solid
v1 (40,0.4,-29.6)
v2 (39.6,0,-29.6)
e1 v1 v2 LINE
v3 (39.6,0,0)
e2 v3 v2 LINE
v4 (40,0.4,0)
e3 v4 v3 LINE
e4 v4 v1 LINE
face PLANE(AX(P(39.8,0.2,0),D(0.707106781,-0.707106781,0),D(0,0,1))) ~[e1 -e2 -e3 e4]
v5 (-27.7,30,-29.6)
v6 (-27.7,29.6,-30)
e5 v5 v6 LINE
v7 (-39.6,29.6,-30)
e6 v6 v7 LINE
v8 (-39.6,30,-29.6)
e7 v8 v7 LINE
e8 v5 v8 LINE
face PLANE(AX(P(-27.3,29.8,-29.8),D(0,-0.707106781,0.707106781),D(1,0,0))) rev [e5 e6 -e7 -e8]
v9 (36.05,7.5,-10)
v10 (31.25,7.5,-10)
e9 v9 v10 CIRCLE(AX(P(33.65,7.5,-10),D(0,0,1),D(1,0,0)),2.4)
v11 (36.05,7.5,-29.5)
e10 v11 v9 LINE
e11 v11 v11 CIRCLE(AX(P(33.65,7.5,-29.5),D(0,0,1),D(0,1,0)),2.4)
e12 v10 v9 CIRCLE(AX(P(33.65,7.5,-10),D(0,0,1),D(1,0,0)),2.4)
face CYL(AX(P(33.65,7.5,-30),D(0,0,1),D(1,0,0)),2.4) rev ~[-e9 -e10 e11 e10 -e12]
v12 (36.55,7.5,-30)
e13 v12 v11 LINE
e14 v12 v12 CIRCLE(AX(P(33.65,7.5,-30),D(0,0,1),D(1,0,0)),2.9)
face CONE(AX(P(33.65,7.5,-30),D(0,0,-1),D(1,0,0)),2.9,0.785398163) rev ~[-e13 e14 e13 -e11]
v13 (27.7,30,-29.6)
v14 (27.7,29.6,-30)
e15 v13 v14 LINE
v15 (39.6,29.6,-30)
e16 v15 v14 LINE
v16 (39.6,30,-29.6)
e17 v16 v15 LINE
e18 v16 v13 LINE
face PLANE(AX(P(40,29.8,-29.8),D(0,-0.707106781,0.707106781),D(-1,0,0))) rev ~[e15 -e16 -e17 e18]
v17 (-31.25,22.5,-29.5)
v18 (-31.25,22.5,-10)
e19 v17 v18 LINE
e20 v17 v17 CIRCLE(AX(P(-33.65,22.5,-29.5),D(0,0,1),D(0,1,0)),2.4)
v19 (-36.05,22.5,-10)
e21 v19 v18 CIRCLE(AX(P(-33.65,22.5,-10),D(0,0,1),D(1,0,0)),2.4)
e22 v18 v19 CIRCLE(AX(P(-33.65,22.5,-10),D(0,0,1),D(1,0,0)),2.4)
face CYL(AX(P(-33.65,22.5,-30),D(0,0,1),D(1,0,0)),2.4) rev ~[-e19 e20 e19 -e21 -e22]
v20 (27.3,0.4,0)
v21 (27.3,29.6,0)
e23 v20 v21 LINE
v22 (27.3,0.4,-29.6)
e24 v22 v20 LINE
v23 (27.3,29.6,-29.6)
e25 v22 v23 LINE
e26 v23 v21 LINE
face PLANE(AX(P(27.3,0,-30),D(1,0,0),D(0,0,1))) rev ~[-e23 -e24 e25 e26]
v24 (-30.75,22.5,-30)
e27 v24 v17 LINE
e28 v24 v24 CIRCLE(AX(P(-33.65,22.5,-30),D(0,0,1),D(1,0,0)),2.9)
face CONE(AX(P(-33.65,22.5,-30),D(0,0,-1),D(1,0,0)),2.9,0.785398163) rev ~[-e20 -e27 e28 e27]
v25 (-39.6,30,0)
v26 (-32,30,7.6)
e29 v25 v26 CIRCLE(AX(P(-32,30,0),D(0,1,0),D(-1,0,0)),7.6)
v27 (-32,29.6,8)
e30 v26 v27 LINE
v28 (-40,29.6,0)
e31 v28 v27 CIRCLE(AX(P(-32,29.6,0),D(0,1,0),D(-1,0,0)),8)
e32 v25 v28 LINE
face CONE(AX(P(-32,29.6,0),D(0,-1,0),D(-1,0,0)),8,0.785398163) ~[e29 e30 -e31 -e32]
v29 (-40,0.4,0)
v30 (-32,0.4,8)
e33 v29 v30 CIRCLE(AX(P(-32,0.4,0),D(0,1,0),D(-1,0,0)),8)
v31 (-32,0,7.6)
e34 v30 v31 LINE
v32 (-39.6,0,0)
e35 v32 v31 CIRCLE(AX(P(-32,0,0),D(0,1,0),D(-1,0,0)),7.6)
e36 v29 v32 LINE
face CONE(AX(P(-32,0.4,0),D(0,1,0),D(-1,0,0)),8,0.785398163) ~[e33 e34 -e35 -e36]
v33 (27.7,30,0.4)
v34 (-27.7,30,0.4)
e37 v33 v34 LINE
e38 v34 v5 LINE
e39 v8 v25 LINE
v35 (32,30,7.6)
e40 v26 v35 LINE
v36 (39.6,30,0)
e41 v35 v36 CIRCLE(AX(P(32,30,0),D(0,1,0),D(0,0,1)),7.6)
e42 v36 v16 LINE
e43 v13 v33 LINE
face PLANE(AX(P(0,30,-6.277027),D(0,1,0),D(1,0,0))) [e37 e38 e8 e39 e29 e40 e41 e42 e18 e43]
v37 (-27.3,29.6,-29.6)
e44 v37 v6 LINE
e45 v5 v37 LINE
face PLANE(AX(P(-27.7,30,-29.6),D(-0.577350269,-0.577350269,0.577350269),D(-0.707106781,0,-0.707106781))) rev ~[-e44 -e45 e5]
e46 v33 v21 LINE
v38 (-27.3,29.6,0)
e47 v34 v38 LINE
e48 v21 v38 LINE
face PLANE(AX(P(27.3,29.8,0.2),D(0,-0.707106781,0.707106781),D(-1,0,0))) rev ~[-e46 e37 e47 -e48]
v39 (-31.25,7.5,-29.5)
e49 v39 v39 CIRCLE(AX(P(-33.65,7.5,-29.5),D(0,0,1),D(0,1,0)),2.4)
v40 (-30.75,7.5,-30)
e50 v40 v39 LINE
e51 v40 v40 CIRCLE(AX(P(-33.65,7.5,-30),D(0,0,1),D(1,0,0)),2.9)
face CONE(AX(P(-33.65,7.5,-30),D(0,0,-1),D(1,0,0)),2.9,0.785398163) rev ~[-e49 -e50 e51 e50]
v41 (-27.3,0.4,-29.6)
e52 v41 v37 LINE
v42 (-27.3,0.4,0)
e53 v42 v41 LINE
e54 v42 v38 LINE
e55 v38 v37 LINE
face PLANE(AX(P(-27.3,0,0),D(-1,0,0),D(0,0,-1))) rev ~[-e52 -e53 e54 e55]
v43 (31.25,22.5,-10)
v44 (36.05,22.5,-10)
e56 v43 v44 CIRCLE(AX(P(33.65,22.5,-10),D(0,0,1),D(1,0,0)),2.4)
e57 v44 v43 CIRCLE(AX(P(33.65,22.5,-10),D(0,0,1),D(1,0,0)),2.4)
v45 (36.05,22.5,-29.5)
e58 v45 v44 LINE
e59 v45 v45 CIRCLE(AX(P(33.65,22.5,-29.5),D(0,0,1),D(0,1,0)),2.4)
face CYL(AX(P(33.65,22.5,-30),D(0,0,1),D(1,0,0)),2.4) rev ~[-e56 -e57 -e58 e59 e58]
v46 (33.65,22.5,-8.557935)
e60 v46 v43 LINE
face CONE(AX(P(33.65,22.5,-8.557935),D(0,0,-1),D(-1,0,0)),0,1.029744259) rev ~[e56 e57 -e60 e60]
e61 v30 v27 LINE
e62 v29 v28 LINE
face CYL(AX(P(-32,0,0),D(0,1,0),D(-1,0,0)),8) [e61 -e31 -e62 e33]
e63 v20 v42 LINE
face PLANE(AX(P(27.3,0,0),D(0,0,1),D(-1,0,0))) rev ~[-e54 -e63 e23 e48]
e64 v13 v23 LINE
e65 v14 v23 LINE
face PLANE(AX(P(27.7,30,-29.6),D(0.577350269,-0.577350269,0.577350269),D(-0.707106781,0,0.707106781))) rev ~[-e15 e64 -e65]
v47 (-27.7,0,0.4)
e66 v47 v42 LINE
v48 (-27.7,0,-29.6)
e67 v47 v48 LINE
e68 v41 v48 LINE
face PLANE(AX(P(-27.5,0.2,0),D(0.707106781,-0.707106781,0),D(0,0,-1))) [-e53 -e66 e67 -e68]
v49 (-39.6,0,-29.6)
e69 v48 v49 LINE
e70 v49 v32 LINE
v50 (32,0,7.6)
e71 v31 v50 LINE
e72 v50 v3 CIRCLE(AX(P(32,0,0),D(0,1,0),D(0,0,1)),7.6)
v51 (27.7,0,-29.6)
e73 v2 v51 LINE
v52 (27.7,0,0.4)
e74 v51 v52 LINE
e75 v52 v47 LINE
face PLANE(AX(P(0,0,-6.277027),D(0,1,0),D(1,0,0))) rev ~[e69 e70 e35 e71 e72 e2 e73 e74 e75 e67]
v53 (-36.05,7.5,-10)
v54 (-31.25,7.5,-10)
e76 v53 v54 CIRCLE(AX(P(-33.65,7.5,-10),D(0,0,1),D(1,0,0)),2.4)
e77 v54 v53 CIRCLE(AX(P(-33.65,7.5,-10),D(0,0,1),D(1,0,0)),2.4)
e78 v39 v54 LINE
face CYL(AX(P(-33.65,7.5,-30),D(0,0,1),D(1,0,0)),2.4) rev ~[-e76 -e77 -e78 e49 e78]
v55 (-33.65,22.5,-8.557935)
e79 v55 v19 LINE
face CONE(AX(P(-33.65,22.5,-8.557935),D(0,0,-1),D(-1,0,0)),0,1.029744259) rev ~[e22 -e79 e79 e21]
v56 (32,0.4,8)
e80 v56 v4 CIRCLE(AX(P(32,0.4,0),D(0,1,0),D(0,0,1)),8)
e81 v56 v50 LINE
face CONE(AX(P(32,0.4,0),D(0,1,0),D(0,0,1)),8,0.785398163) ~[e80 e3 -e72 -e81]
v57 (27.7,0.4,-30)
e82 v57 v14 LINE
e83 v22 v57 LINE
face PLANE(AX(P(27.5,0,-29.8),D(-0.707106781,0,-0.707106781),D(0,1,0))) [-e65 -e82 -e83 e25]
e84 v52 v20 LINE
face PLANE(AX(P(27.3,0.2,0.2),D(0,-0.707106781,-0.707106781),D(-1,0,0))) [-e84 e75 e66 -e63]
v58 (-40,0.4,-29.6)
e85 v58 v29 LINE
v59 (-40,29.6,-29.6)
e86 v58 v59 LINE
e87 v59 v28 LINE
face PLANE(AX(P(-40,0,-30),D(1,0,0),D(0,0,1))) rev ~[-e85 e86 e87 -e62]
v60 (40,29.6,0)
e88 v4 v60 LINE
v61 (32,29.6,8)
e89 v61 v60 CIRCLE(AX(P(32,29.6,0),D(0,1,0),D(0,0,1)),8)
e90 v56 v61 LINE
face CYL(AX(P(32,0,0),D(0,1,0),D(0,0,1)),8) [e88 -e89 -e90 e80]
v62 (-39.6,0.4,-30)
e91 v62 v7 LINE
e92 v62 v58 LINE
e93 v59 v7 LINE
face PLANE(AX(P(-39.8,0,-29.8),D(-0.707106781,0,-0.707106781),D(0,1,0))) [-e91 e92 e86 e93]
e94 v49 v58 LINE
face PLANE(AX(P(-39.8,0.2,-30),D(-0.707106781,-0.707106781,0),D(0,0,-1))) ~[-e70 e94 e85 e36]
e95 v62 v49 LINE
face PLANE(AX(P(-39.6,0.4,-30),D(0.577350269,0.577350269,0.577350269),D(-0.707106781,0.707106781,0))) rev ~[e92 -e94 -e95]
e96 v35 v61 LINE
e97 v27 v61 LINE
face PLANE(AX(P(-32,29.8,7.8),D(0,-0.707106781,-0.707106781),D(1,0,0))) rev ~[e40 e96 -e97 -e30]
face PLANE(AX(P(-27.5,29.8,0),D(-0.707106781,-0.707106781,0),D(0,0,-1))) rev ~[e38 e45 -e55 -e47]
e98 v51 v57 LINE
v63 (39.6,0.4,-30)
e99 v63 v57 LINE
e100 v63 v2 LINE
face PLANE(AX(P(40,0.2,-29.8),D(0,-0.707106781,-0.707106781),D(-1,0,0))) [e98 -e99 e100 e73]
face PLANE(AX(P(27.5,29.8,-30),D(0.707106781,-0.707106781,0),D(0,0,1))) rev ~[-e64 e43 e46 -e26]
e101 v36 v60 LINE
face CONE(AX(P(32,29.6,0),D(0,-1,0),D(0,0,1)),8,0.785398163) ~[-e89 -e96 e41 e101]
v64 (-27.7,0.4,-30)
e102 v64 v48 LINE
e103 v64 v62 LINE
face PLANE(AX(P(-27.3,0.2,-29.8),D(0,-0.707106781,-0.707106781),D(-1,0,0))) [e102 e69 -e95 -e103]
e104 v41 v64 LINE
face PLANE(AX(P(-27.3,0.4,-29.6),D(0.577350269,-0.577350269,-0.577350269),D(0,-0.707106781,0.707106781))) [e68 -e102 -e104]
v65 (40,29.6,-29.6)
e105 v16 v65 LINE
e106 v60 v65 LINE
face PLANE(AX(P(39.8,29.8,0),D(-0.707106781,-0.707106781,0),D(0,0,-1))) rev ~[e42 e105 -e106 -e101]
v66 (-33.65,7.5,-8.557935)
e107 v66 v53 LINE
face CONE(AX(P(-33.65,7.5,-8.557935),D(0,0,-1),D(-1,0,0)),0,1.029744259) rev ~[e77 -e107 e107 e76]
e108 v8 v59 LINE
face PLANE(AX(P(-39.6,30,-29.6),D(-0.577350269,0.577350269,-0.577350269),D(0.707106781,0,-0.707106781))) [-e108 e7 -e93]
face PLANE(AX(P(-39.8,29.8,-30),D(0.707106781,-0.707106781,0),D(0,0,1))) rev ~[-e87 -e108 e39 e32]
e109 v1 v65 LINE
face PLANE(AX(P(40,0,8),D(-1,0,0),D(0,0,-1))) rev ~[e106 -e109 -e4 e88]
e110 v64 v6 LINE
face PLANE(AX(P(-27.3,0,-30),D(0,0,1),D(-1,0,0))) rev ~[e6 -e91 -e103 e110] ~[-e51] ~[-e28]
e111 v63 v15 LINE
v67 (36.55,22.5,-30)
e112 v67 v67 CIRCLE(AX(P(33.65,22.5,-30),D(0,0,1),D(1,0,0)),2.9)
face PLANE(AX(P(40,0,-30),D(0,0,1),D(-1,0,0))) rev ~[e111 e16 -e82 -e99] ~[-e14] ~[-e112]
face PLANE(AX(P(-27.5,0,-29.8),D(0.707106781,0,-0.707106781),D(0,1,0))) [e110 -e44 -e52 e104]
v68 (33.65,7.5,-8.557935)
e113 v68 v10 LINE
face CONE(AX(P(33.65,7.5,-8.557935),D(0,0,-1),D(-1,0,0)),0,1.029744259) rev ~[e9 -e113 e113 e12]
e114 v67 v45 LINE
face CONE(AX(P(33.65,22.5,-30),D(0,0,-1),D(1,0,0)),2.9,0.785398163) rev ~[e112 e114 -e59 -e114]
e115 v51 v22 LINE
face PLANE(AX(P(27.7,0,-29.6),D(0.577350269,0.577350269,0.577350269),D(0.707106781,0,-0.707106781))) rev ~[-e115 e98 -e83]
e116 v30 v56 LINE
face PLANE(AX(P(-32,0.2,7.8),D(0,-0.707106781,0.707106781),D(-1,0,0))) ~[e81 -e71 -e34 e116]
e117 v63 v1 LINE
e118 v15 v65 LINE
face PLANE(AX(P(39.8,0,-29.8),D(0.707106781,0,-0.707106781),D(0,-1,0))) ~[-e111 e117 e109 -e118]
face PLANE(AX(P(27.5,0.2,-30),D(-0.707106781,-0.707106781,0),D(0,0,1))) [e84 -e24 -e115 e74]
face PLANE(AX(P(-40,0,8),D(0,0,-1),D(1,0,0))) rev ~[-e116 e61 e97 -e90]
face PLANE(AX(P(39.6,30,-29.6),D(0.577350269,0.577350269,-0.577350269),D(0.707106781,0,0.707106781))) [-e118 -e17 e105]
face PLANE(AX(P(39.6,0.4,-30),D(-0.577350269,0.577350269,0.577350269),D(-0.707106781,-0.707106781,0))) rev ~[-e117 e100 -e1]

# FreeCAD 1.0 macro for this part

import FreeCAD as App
import Part
import Sketcher


def edges_at(feature, points):
    """Names of the edges that pass closest to the given points."""
    edges = feature.Shape.Edges
    near = lambda p: min(range(len(edges)), key=lambda i: edges[i].distToShape(Part.Vertex(*p))[0])
    return sorted({f"Edge{near(p) + 1}" for p in points})


def add_polygon(sketch, points):
    """Adds a closed chain of lines whose ends are joined by coincident constraints."""
    first, n = sketch.GeometryCount, len(points)
    for a, b in zip(points, points[1:] + points[:1]):
        sketch.addGeometry(Part.LineSegment(App.Vector(*a, 0), App.Vector(*b, 0)), False)
    for i in range(n):
        sketch.addConstraint(Sketcher.Constraint("Coincident", first + i, 2, first + (i + 1) % n, 1))

doc = App.newDocument("Part")
body = doc.addObject("PartDesign::Body", "Body")

sketch1 = doc.addObject("Sketcher::SketchObject", "Sketch")
body.addObject(sketch1)
sketch1.AttachmentSupport = (doc.XZ_Plane, [""])
sketch1.MapMode = "FlatFace"
add_polygon(sketch1, [(-40, -30), (-40, 8), (40, 8), (40, -30), (27, -30), (27, 0), (-27, 0), (-27, -30)])
sketch1.addConstraint([
    Sketcher.Constraint("Vertical", 0),
    Sketcher.Constraint("Horizontal", 1),
    Sketcher.Constraint("Vertical", 2),
    Sketcher.Constraint("Horizontal", 3),
    Sketcher.Constraint("Vertical", 4),
    Sketcher.Constraint("Horizontal", 5),
    Sketcher.Constraint("Vertical", 6),
    Sketcher.Constraint("Horizontal", 7),
    Sketcher.Constraint("Symmetric", 4, 2, 5, 2, -1, 1),
    Sketcher.Constraint("Symmetric", 2, 2, 7, 2, -2),
    Sketcher.Constraint("DistanceX", 1, 1, 1, 2, 80.0),
    Sketcher.Constraint("DistanceY", 0, 1, 0, 2, 38.0),
    Sketcher.Constraint("DistanceY", 4, 1, 4, 2, 30.0),
    Sketcher.Constraint("DistanceX", 3, 2, 3, 1, 12.7),
])
pad1 = doc.addObject("PartDesign::Pad", "Pad")
body.addObject(pad1)
pad1.Profile = sketch1
pad1.Length = 30
pad1.Reversed = True

sketch2 = doc.addObject("Sketcher::SketchObject", "Sketch001")
body.addObject(sketch2)
sketch2.AttachmentSupport = (doc.XY_Plane, [""])
sketch2.MapMode = "FlatFace"
sketch2.AttachmentOffset = App.Placement(App.Vector(0, 0, -30), App.Rotation())
sketch2.addGeometry([
    Part.Circle(App.Vector(-33.6, 7.5, 0), App.Vector(0, 0, 1), 2.4),
    Part.Circle(App.Vector(33.6, 22.5, 0), App.Vector(0, 0, 1), 2.4),
    Part.Circle(App.Vector(33.6, 7.5, 0), App.Vector(0, 0, 1), 2.4),
    Part.Circle(App.Vector(-33.6, 22.5, 0), App.Vector(0, 0, 1), 2.4),
], False)
sketch2.addConstraint([
    Sketcher.Constraint("Equal", 0, 1),
    Sketcher.Constraint("Equal", 1, 2),
    Sketcher.Constraint("Equal", 2, 3),
    Sketcher.Constraint("Symmetric", 0, 3, 2, 3, -2),
    Sketcher.Constraint("Symmetric", 1, 3, 3, 3, -2),
    Sketcher.Constraint("Vertical", 1, 3, 2, 3),
    Sketcher.Constraint("Diameter", 0, 4.8),
    Sketcher.Constraint("DistanceY", 0, 3, 1, 3, 15.0),
    Sketcher.Constraint("DistanceY", -1, 1, 0, 3, 7.5),
    Sketcher.Constraint("DistanceX", 0, 3, 1, 3, 67.3),
])
doc.recompute()
hole = doc.addObject("PartDesign::Hole", "Hole")
body.addObject(hole)
hole.Profile = sketch2
hole.ThreadType = "None"
hole.Diameter = 4.8
hole.DepthType = "Dimension"
hole.Depth = 20
hole.DrillPoint = "Angled"
hole.DrillPointAngle = 118
hole.HoleCutType = "Countersink"
hole.HoleCutDiameter = 5.8
hole.HoleCutCountersinkAngle = 90
hole.Reversed = True
doc.recompute()

fillet = doc.addObject("PartDesign::Fillet", "Fillet")
body.addObject(fillet)
fillet.Base = (hole, edges_at(hole, [(40, 15, 8), (-40, 15, 8)]))
fillet.Radius = 8
doc.recompute()

chamfer = doc.addObject("PartDesign::Chamfer", "Chamfer")
body.addObject(chamfer)
chamfer.Base = (fillet, edges_at(fillet, [
    (-40, 0, -15),
    (-33.65, 0, -30),
    (-27.3, 15, -30),
    (27.3, 15, -30),
    (40, 15, -30),
    (-40, 15, -30),
    (33.65, 30, -30),
    (27.3, 30, -15),
    (0, 30, 0),
    (-27.3, 30, -15),
    (0, 0, 8),
    (0, 30, 8),
    (40, 0, -15),
    (37.657, 0, 5.657),
    (-37.657, 0, 5.657),
    (40, 30, -15),
    (37.657, 30, 5.657),
    (-33.65, 30, -30),
    (-37.657, 30, 5.657),
    (-27.3, 0, -15),
    (-40, 30, -15),
    (0, 0, 0),
    (27.3, 0, -15),
    (33.65, 0, -30),
]))
chamfer.Size = 0.4

doc.recompute()
